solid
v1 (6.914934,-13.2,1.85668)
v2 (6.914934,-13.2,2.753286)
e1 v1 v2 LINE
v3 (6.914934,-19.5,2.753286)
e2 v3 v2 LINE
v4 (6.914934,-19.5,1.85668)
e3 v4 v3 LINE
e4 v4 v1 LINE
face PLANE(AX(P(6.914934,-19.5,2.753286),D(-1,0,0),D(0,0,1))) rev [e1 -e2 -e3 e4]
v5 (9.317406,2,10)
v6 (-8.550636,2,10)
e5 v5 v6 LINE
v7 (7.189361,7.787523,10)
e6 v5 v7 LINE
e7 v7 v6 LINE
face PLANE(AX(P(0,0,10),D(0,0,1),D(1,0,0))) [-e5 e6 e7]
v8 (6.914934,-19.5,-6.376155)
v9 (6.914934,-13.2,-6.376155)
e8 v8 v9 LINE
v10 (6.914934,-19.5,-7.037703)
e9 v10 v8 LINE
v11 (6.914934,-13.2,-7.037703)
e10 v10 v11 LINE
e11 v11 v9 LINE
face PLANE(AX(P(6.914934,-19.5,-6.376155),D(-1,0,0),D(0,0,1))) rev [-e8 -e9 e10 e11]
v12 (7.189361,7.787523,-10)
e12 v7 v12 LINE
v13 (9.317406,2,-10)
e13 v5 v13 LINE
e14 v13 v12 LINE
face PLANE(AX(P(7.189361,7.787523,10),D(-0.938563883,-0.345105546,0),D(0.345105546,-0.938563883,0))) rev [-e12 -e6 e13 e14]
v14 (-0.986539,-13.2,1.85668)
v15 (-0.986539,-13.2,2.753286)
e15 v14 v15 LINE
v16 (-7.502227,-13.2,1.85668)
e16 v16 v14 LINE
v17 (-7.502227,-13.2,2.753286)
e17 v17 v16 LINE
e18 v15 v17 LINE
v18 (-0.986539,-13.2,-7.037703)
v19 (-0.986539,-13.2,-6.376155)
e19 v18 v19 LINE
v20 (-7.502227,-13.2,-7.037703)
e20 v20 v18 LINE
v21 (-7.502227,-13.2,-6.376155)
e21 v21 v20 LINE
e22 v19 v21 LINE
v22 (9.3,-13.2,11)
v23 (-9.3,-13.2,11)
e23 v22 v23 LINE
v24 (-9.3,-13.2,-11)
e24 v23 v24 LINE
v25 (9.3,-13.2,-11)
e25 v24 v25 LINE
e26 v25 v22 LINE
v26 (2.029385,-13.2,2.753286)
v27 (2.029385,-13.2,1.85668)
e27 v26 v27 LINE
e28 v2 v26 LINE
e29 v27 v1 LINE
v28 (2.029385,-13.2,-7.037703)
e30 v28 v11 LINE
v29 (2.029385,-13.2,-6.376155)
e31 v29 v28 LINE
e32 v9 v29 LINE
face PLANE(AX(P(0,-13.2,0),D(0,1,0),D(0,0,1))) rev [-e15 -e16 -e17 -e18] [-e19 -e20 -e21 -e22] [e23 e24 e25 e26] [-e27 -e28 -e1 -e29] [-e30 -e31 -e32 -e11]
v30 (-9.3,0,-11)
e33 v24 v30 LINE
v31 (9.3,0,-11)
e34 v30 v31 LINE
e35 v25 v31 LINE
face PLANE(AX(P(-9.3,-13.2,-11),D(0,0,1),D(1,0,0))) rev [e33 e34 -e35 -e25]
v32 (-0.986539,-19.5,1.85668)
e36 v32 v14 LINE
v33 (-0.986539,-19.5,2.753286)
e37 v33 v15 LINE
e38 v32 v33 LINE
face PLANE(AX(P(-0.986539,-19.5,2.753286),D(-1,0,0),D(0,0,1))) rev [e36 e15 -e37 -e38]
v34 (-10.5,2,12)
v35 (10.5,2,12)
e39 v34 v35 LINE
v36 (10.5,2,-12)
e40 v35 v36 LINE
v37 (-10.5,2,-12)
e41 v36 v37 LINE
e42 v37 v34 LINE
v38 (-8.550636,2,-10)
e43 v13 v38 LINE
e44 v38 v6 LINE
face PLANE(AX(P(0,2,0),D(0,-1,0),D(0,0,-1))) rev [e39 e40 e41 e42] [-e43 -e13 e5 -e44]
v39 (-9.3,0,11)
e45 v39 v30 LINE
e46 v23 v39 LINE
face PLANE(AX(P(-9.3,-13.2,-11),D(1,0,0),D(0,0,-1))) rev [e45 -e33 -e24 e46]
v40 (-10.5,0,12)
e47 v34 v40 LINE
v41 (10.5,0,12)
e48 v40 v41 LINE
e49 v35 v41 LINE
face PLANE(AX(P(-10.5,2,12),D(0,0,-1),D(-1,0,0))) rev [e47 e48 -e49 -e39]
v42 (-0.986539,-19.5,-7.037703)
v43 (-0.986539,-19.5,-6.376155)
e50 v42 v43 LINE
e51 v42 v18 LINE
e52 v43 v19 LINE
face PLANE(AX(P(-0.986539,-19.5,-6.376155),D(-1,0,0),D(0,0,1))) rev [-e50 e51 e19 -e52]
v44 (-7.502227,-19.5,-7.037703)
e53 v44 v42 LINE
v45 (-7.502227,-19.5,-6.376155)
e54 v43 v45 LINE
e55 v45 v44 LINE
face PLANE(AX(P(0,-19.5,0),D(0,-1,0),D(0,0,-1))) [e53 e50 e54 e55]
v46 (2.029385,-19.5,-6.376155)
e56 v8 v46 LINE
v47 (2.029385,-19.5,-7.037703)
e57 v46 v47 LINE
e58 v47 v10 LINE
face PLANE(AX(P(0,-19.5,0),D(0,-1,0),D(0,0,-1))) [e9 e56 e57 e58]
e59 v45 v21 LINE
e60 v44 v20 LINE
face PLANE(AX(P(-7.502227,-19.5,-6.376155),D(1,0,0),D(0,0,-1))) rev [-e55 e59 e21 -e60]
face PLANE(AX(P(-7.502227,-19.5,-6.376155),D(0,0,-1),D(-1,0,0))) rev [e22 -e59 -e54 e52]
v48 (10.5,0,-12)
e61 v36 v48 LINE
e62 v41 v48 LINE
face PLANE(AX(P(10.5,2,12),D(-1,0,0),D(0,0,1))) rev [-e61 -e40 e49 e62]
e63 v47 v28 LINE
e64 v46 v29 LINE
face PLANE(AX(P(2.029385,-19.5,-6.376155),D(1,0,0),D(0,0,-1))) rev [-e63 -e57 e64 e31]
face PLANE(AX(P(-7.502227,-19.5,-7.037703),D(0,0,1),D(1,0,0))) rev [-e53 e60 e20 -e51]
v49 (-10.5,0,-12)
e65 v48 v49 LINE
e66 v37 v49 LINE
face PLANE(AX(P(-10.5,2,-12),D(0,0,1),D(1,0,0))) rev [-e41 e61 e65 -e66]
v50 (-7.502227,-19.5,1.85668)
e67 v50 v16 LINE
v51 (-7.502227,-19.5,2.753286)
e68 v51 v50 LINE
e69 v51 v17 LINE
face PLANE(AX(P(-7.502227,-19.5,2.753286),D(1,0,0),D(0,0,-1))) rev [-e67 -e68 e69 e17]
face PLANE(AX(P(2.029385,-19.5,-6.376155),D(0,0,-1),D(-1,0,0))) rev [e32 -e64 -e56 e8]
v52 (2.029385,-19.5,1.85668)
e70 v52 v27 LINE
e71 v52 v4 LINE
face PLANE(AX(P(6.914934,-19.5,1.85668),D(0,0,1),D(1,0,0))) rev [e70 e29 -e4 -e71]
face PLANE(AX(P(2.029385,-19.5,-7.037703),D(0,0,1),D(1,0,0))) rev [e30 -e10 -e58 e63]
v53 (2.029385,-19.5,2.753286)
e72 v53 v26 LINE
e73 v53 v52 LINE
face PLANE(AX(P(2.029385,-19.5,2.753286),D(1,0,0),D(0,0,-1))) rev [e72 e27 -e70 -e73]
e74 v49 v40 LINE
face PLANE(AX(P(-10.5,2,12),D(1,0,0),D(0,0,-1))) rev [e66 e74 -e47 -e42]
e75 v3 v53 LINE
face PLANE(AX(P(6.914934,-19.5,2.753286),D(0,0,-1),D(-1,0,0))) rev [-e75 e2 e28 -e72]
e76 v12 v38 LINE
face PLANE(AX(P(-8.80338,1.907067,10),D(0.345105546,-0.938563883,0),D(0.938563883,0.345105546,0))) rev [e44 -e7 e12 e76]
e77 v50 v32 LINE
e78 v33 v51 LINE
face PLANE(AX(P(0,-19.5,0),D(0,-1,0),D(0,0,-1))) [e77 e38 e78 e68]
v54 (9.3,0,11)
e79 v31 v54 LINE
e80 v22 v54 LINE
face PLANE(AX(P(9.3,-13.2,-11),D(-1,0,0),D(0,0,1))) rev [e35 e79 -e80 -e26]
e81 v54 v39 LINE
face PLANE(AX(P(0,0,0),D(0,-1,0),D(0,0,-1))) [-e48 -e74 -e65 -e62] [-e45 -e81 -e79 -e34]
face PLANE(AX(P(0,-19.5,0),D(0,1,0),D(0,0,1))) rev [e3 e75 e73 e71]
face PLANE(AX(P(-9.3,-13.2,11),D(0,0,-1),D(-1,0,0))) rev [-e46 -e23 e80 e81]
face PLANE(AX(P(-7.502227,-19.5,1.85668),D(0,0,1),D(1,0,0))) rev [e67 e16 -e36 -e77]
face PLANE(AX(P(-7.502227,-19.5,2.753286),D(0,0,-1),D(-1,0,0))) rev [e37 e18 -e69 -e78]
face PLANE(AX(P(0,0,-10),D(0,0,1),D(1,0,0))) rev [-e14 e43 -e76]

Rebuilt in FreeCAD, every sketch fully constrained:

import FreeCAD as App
import Part
import Sketcher

V = App.Vector


def add_polygon(sketch, points):
    """Adds a closed chain of lines whose ends are joined by coincident constraints."""
    first, n = sketch.GeometryCount, len(points)
    for a, b in zip(points, points[1:] + points[:1]):
        sketch.addGeometry(Part.LineSegment(App.Vector(*a, 0), App.Vector(*b, 0)), False)
    for i in range(n):
        sketch.addConstraint(Sketcher.Constraint("Coincident", first + i, 2, first + (i + 1) % n, 1))

doc = App.newDocument("Part")
body = doc.addObject("PartDesign::Body", "Body")

# Sketch on XZ plane
sketch1 = body.newObject("Sketcher::SketchObject", "Sketch")
sketch1.AttachmentSupport = (doc.getObject("XZ_Plane"), [""])
sketch1.MapMode = "FlatFace"
add_polygon(sketch1, [(-10, -12), (-10, 12), (10, 12), (10, -12)])  # lines 0-3
sketch1.addConstraint([
    Sketcher.Constraint("Vertical", 0),
    Sketcher.Constraint("Horizontal", 1),
    Sketcher.Constraint("Vertical", 2),
    Sketcher.Constraint("Horizontal", 3),
    Sketcher.Constraint("Symmetric", 0, 2, 2, 2, -1, 1),
    Sketcher.Constraint("DistanceX", 1, 1, 1, 2, 21.0),
    Sketcher.Constraint("DistanceY", 0, 1, 0, 2, 24.0),
])
pad1 = body.newObject("PartDesign::Pad", "Pad")
pad1.Profile = sketch1
pad1.Length = 2
pad1.Reversed = True

# Sketch on XZ plane
sketch2 = body.newObject("Sketcher::SketchObject", "Sketch001")
sketch2.AttachmentSupport = (doc.getObject("XZ_Plane"), [""])
sketch2.MapMode = "FlatFace"
add_polygon(sketch2, [(-9, 11), (-9, -11), (9, -11), (9, 11)])  # lines 0-3
sketch2.addConstraint([
    Sketcher.Constraint("Vertical", 0),
    Sketcher.Constraint("Horizontal", 1),
    Sketcher.Constraint("Vertical", 2),
    Sketcher.Constraint("Horizontal", 3),
    Sketcher.Constraint("Symmetric", 0, 2, 2, 2, -1, 1),
    Sketcher.Constraint("DistanceY", 0, 2, 0, 1, 22.0),
    Sketcher.Constraint("DistanceX", 1, 1, 1, 2, 18.6),
])
pad2 = body.newObject("PartDesign::Pad", "Pad001")
pad2.Profile = sketch2
pad2.Length = 13.2

# Sketch on XZ plane
sketch3 = body.newObject("Sketcher::SketchObject", "Sketch002")
sketch3.AttachmentSupport = (doc.getObject("XZ_Plane"), [""])
sketch3.MapMode = "FlatFace"
sketch3.AttachmentOffset = App.Placement(V(0, 0, 13.2), App.Rotation())
add_polygon(sketch3, [(2, 2.8), (2, 1.9), (6.9, 1.9), (6.9, 2.8)])  # lines 0-3
add_polygon(sketch3, [(2, -6.4), (2, -7), (6.9, -7), (6.9, -6.4)])  # lines 4-7
add_polygon(sketch3, [(-7.5, -6.4), (-7.5, -7), (-1, -7), (-1, -6.4)])  # lines 8-11
add_polygon(sketch3, [(-7.5, 2.8), (-7.5, 1.9), (-1, 1.9), (-1, 2.8)])  # lines 12-15
sketch3.addConstraint([
    Sketcher.Constraint("Vertical", 0),
    Sketcher.Constraint("Horizontal", 1),
    Sketcher.Constraint("Vertical", 2),
    Sketcher.Constraint("Horizontal", 3),
    Sketcher.Constraint("Vertical", 4),
    Sketcher.Constraint("Horizontal", 5),
    Sketcher.Constraint("Vertical", 6),
    Sketcher.Constraint("Horizontal", 7),
    Sketcher.Constraint("Vertical", 8),
    Sketcher.Constraint("Horizontal", 9),
    Sketcher.Constraint("Vertical", 10),
    Sketcher.Constraint("Horizontal", 11),
    Sketcher.Constraint("Vertical", 12),
    Sketcher.Constraint("Horizontal", 13),
    Sketcher.Constraint("Vertical", 14),
    Sketcher.Constraint("Horizontal", 15),
    Sketcher.Constraint("Horizontal", 5, 2, 8, 2),
    Sketcher.Constraint("Horizontal", 7, 2, 10, 2),
    Sketcher.Constraint("Horizontal", 1, 2, 12, 2),
    Sketcher.Constraint("Horizontal", 3, 2, 14, 2),
    Sketcher.Constraint("Vertical", 3, 2, 4, 2),
    Sketcher.Constraint("Vertical", 2, 2, 5, 2),
    Sketcher.Constraint("Vertical", 11, 2, 12, 2),
    Sketcher.Constraint("Vertical", 10, 2, 13, 2),
    Sketcher.Constraint("DistanceX", 1, 1, 1, 2, 4.885549),
    Sketcher.Constraint("DistanceX", 9, 1, 9, 2, 6.515688),
    Sketcher.Constraint("DistanceY", 0, 2, 0, 1, 0.896605),
    Sketcher.Constraint("DistanceY", 4, 2, 4, 1, 0.661548),
    Sketcher.Constraint("DistanceY", -1, 1, 0, 2, 1.85668),
    Sketcher.Constraint("DistanceX", 9, 2, -1, 1, 0.986539),
    Sketcher.Constraint("DistanceY", 4, 2, 3, 2, 9.790989),
    Sketcher.Constraint("DistanceX", 8, 2, 5, 2, 14.417161),
])
pad3 = body.newObject("PartDesign::Pad", "Pad002")
pad3.Profile = sketch3
pad3.Length = 6.3

# Sketch on XY plane
sketch4 = body.newObject("Sketcher::SketchObject", "Sketch003")
sketch4.AttachmentSupport = (doc.getObject("XY_Plane"), [""])
sketch4.MapMode = "FlatFace"
add_polygon(sketch4, [(7, 8), (-9, 2), (9, 2)])  # lines 0-2
sketch4.addConstraint([
    Sketcher.Constraint("Perpendicular", 0, 2),
    Sketcher.Constraint("Distance", 1, 18.184159),
    Sketcher.Constraint("DistanceX", 0, 2, -1, 1, 8.80338),
    Sketcher.Constraint("DistanceX", -1, 1, 2, 2, 7.189361),
    Sketcher.Constraint("DistanceY", 1, 2, 2, 2, 5.959408),
    Sketcher.Constraint("DistanceY", -1, 1, 0, 2, 1.907067),
])
pad4 = body.newObject("PartDesign::Pad", "Pad003")
pad4.Profile = sketch4
pad4.Length = 20
pad4.Midplane = True

doc.recompute()
